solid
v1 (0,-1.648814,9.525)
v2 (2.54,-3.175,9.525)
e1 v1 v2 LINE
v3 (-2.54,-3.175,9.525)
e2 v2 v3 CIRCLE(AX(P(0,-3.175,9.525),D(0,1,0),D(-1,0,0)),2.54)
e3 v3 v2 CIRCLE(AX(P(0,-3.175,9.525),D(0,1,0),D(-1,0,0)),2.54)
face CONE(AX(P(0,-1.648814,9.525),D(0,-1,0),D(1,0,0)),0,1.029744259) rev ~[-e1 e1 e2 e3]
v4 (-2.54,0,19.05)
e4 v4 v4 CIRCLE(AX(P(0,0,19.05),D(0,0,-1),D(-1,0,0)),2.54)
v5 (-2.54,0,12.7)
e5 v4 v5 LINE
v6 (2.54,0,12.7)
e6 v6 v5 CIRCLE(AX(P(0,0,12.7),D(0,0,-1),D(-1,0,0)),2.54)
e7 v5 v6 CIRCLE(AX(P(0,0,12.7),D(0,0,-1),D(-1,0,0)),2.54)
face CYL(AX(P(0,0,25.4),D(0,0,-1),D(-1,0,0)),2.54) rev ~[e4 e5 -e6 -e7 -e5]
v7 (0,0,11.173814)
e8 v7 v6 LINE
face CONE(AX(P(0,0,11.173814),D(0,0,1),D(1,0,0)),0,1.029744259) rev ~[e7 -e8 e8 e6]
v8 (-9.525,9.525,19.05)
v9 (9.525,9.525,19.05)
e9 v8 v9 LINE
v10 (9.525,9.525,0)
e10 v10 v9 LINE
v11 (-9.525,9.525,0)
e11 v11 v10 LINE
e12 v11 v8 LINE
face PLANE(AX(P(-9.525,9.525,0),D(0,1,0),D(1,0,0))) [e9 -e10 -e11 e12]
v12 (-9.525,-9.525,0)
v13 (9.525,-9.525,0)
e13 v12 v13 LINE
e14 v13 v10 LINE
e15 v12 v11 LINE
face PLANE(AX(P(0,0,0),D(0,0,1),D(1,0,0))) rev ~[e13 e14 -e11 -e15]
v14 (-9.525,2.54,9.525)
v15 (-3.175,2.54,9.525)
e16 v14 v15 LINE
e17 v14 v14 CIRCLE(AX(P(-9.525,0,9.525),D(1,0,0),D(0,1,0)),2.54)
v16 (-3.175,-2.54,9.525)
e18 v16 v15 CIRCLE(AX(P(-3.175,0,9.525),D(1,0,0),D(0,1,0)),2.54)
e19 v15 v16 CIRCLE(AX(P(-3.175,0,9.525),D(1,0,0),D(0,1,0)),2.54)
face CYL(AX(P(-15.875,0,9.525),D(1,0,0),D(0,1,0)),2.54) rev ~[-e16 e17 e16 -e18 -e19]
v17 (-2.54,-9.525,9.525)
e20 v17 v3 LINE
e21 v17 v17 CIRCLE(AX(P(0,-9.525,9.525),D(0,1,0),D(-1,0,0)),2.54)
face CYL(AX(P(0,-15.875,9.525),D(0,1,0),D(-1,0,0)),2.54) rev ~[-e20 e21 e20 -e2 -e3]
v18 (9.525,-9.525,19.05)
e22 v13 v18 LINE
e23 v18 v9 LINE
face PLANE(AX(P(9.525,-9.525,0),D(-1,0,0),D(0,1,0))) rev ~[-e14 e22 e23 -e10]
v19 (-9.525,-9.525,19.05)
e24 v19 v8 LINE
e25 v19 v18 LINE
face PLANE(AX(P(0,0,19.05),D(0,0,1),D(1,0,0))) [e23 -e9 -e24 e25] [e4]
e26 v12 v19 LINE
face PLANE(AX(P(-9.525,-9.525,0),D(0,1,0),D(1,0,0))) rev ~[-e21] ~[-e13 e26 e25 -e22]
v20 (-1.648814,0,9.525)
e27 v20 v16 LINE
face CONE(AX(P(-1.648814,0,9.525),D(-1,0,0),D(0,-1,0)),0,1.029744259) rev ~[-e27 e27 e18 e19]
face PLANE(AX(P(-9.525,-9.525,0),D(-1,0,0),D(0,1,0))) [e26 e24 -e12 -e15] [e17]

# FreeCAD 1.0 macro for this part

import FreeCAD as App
import Part
import Sketcher

V = App.Vector
Q = App.Units.Quantity


def add_polygon(sketch, points):
    """Adds a closed chain of lines whose ends are joined by coincident constraints."""
    first, n = sketch.GeometryCount, len(points)
    for a, b in zip(points, points[1:] + points[:1]):
        sketch.addGeometry(Part.LineSegment(App.Vector(*a, 0), App.Vector(*b, 0)), False)
    for i in range(n):
        sketch.addConstraint(Sketcher.Constraint("Coincident", first + i, 2, first + (i + 1) % n, 1))

doc = App.newDocument("Part")
body = doc.addObject("PartDesign::Body", "Body")

# Sketch on XY plane
sketch1 = body.newObject("Sketcher::SketchObject", "Sketch")
sketch1.AttachmentSupport = (doc.getObject("XY_Plane"), [""])
sketch1.MapMode = "FlatFace"
add_polygon(sketch1, [(-10, 10), (-10, -10), (10, -10), (10, 10)])  # lines 0-3
sketch1.addConstraint([
    Sketcher.Constraint("Vertical", 0),
    Sketcher.Constraint("Horizontal", 1),
    Sketcher.Constraint("Vertical", 2),
    Sketcher.Constraint("Horizontal", 3),
    Sketcher.Constraint("Symmetric", 0, 2, 2, 2, -1, 1),
    Sketcher.Constraint("Equal", 3, 0),
    Sketcher.Constraint("DistanceX", 1, 1, 1, 2, Q("0.75 in")),
])
pad1 = body.newObject("PartDesign::Pad", "Pad")
pad1.Profile = sketch1
pad1.Length = Q("0.75 in")

# Sketch on XZ plane
sketch2 = body.newObject("Sketcher::SketchObject", "Sketch001")
sketch2.AttachmentSupport = (doc.getObject("XZ_Plane"), [""])
sketch2.MapMode = "FlatFace"
sketch2.AttachmentOffset = App.Placement(V(0, 0, 0.375 * 25.4), App.Rotation())
sketch2.addGeometry(Part.Circle(V(0, 9.5, 0), V(0, 0, 1), 2.5), False)
sketch2.addConstraint([
    Sketcher.Constraint("PointOnObject", 0, 3, -2),
    Sketcher.Constraint("Diameter", 0, Q("0.2 in")),
    Sketcher.Constraint("DistanceY", -1, 1, 0, 3, Q("0.375 in")),
])
doc.recompute()
hole = body.newObject("PartDesign::Hole", "Hole")
hole.Profile = sketch2
hole.ThreadType = "None"
hole.Diameter = Q("0.2 in")
hole.DepthType = "Dimension"
hole.Depth = Q("0.25 in")
hole.DrillPoint = "Angled"
hole.DrillPointAngle = 118

# Sketch on YZ plane
sketch3 = body.newObject("Sketcher::SketchObject", "Sketch002")
sketch3.AttachmentSupport = (doc.getObject("YZ_Plane"), [""])
sketch3.MapMode = "FlatFace"
sketch3.AttachmentOffset = App.Placement(V(0, 0, -0.375 * 25.4), App.Rotation())
sketch3.addGeometry(Part.Circle(V(0, 9.5, 0), V(0, 0, 1), 2.5), False)
sketch3.addConstraint([
    Sketcher.Constraint("PointOnObject", 0, 3, -2),
    Sketcher.Constraint("Diameter", 0, Q("0.2 in")),
    Sketcher.Constraint("DistanceY", -1, 1, 0, 3, Q("0.375 in")),
])
doc.recompute()
hole2 = body.newObject("PartDesign::Hole", "Hole001")
hole2.Profile = sketch3
hole2.ThreadType = "None"
hole2.Diameter = Q("0.2 in")
hole2.DepthType = "Dimension"
hole2.Depth = Q("0.25 in")
hole2.DrillPoint = "Angled"
hole2.DrillPointAngle = 118
hole2.Reversed = True

# Sketch on XY plane
sketch4 = body.newObject("Sketcher::SketchObject", "Sketch003")
sketch4.AttachmentSupport = (doc.getObject("XY_Plane"), [""])
sketch4.MapMode = "FlatFace"
sketch4.AttachmentOffset = App.Placement(V(0, 0, 0.75 * 25.4), App.Rotation())
sketch4.addGeometry(Part.Circle(V(0, 0, 0), V(0, 0, 1), 2.5), False)
sketch4.addConstraint([
    Sketcher.Constraint("Coincident", 0, 3, -1, 1),
    Sketcher.Constraint("Diameter", 0, Q("0.2 in")),
])
doc.recompute()
hole3 = body.newObject("PartDesign::Hole", "Hole002")
hole3.Profile = sketch4
hole3.ThreadType = "None"
hole3.Diameter = Q("0.2 in")
hole3.DepthType = "Dimension"
hole3.Depth = Q("0.25 in")
hole3.DrillPoint = "Angled"
hole3.DrillPointAngle = 118

doc.recompute()
